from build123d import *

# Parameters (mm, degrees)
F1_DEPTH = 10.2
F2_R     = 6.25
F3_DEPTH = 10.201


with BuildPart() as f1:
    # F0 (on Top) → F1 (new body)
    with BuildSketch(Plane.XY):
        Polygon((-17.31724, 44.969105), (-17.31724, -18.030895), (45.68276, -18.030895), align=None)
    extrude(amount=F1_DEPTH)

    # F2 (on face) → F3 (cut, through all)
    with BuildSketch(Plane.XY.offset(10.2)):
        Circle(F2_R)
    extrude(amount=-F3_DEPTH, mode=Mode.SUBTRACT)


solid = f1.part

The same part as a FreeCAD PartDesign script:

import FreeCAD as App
import Part
import Sketcher

V = App.Vector

doc = App.newDocument("Part")
body = doc.addObject("PartDesign::Body", "Body")

sketch1 = doc.addObject("Sketcher::SketchObject", "Sketch")
body.addObject(sketch1)
sketch1.AttachmentSupport = (doc.XY_Plane, [""])
sketch1.MapMode = "FlatFace"
sketch1.addGeometry([
    Part.LineSegment(V(-17, 45, 0), V(-17, -18, 0)),
    Part.LineSegment(V(-17, -18, 0), V(46, -18, 0)),
    Part.LineSegment(V(46, -18, 0), V(-17, 45, 0)),
], False)
sketch1.addConstraint([
    Sketcher.Constraint("Coincident", 0, 2, 1, 1),
    Sketcher.Constraint("Coincident", 1, 2, 2, 1),
    Sketcher.Constraint("Coincident", 2, 2, 0, 1),
    Sketcher.Constraint("Vertical", 0),
    Sketcher.Constraint("Horizontal", 1),
    Sketcher.Constraint("Equal", 1, 0),
    Sketcher.Constraint("DistanceX", 1, 1, 1, 2, 63.0),
    Sketcher.Constraint("DistanceX", 0, 2, -1, 1, 17.31724),
    Sketcher.Constraint("DistanceY", 0, 2, -1, 1, 18.030895),
])
pad1 = doc.addObject("PartDesign::Pad", "Pad")
body.addObject(pad1)
pad1.Profile = sketch1
pad1.Length = 10.2

sketch2 = doc.addObject("Sketcher::SketchObject", "Sketch001")
body.addObject(sketch2)
sketch2.AttachmentSupport = (doc.XY_Plane, [""])
sketch2.MapMode = "FlatFace"
sketch2.AttachmentOffset = App.Placement(V(0, 0, 10.2), App.Rotation())
sketch2.addGeometry(Part.Circle(V(0, 0, 0), V(0, 0, 1), 6), False)
sketch2.addConstraint([
    Sketcher.Constraint("Coincident", 0, 3, -1, 1),
    Sketcher.Constraint("Diameter", 0, 12.5),
])
pocket1 = doc.addObject("PartDesign::Pocket", "Pocket")
body.addObject(pocket1)
pocket1.Profile = sketch2
pocket1.Type = "ThroughAll"

doc.recompute()
